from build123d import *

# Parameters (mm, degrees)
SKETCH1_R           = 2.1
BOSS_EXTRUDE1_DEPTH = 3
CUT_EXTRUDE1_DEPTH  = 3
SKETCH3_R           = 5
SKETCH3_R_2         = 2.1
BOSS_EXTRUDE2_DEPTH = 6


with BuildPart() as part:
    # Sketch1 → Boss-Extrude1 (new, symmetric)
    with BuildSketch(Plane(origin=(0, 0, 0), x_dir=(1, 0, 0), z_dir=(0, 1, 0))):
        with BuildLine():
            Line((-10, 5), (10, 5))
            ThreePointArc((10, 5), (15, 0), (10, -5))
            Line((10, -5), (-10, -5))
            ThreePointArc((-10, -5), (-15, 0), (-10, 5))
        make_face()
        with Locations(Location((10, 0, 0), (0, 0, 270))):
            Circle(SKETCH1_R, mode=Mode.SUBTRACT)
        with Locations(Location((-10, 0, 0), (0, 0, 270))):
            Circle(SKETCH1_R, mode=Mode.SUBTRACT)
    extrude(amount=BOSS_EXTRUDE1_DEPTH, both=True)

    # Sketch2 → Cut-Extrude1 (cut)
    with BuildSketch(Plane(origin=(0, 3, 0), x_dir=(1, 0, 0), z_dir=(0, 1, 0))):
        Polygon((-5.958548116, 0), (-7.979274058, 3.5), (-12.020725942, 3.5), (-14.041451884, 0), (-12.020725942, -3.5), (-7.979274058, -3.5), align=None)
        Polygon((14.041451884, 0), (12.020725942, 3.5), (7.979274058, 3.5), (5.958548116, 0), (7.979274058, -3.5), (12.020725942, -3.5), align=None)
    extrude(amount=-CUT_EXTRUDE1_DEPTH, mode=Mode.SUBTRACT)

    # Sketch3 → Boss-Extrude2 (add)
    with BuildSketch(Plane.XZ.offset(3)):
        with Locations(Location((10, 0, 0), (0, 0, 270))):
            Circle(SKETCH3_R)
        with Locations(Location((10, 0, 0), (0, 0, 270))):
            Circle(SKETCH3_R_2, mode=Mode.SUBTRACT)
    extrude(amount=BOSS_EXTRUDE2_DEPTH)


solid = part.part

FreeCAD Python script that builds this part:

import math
import FreeCAD as App
import Part
import Sketcher
Q = App.Units.Quantity

doc = App.newDocument("Part")
params = doc.addObject("Spreadsheet::Sheet", "Params")
for row, (alias, value) in enumerate([
    ("sketch1_radius", "5 mm"),
    ("sketch1_diameter", "4.2 mm"),
    ("sketch1_width", "20 mm"),
    ("pad1_length", "6 mm"),
    ("pocket1_length", "3 mm"),
    ("sketch3_diameter", "10 mm"),
    ("sketch3_diameter2", "4.2 mm"),
    ("pad2_length", "6 mm"),
], start=1):
    params.set(f"A{row}", alias)
    params.set(f"B{row}", "=" + value)
    params.setAlias(f"B{row}", alias)

body = doc.addObject("PartDesign::Body", "Body")

# Sketch on XZ plane
sketch1 = doc.addObject("Sketcher::SketchObject", "Sketch")
body.addObject(sketch1)
sketch1.AttachmentSupport = (doc.XZ_Plane, [""])
sketch1.MapMode = "FlatFace"
sketch1.addGeometry([
    Part.LineSegment(App.Vector(10, -5, 0), App.Vector(-10, -5, 0)),  # 0
    Part.ArcOfCircle(Part.Circle(App.Vector(-10, 0, 0), App.Vector(0, 0, 1), 5), math.radians(90), math.radians(270)),  # 1
    Part.LineSegment(App.Vector(-10, 5, 0), App.Vector(10, 5, 0)),  # 2
    Part.ArcOfCircle(Part.Circle(App.Vector(10, 0, 0), App.Vector(0, 0, 1), 5), math.radians(-90), math.radians(90)),  # 3
    Part.Circle(App.Vector(10, 0, 0), App.Vector(0, 0, 1), 2.1),  # 4
    Part.Circle(App.Vector(-10, 0, 0), App.Vector(0, 0, 1), 2.1),  # 5
], False)
sketch1.addConstraint([
    Sketcher.Constraint("Tangent", 0, 2, 1, 2),
    Sketcher.Constraint("Tangent", 1, 1, 2, 1),
    Sketcher.Constraint("Tangent", 2, 2, 3, 2),
    Sketcher.Constraint("Tangent", 3, 1, 0, 1),
    Sketcher.Constraint("Horizontal", 0),
    Sketcher.Constraint("Horizontal", 2),
    Sketcher.Constraint("Coincident", 4, 3, 3, 3),
    Sketcher.Constraint("Coincident", 5, 3, 1, 3),
    Sketcher.Constraint("Equal", 4, 5),
    Sketcher.Constraint("Symmetric", 1, 3, 3, 3, -1, 1),
    Sketcher.Constraint("Radius", 1, Q("5 mm")),
    Sketcher.Constraint("Diameter", 4, Q("4.2 mm")),
    Sketcher.Constraint("DistanceX", 0, 2, 0, 1, Q("20 mm")),
])
sketch1.setExpression("Constraints[10]", "Params.sketch1_radius")
sketch1.setExpression("Constraints[11]", "Params.sketch1_diameter")
sketch1.setExpression("Constraints[12]", "Params.sketch1_width")
pad1 = doc.addObject("PartDesign::Pad", "Pad")
body.addObject(pad1)
pad1.Profile = sketch1
pad1.setExpression("Length", "Params.pad1_length")
pad1.Midplane = True

# Sketch on XZ plane
sketch2 = doc.addObject("Sketcher::SketchObject", "Sketch001")
body.addObject(sketch2)
sketch2.AttachmentSupport = (doc.XZ_Plane, [""])
sketch2.MapMode = "FlatFace"
sketch2.AttachmentOffset = App.Placement(App.Vector(0, 0, -3), App.Rotation())
sketch2.addGeometry([
    Part.LineSegment(App.Vector(-6, 0, 0), App.Vector(-8, -3.5, 0)),  # 0
    Part.LineSegment(App.Vector(-8, -3.5, 0), App.Vector(-12, -3.5, 0)),  # 1
    Part.LineSegment(App.Vector(-12, -3.5, 0), App.Vector(-14, 0, 0)),  # 2
    Part.LineSegment(App.Vector(-14, 0, 0), App.Vector(-12, 3.5, 0)),  # 3
    Part.LineSegment(App.Vector(-12, 3.5, 0), App.Vector(-8, 3.5, 0)),  # 4
    Part.LineSegment(App.Vector(-8, 3.5, 0), App.Vector(-6, 0, 0)),  # 5
    Part.LineSegment(App.Vector(14, 0, 0), App.Vector(12, -3.5, 0)),  # 6
    Part.LineSegment(App.Vector(12, -3.5, 0), App.Vector(8, -3.5, 0)),  # 7
    Part.LineSegment(App.Vector(8, -3.5, 0), App.Vector(6, 0, 0)),  # 8
    Part.LineSegment(App.Vector(6, 0, 0), App.Vector(8, 3.5, 0)),  # 9
    Part.LineSegment(App.Vector(8, 3.5, 0), App.Vector(12, 3.5, 0)),  # 10
    Part.LineSegment(App.Vector(12, 3.5, 0), App.Vector(14, 0, 0)),  # 11
], False)
sketch2.addConstraint([
    Sketcher.Constraint("Coincident", 0, 2, 1, 1),
    Sketcher.Constraint("Coincident", 1, 2, 2, 1),
    Sketcher.Constraint("Coincident", 2, 2, 3, 1),
    Sketcher.Constraint("Coincident", 3, 2, 4, 1),
    Sketcher.Constraint("Coincident", 4, 2, 5, 1),
    Sketcher.Constraint("Coincident", 5, 2, 0, 1),
    Sketcher.Constraint("Coincident", 6, 2, 7, 1),
    Sketcher.Constraint("Coincident", 7, 2, 8, 1),
    Sketcher.Constraint("Coincident", 8, 2, 9, 1),
    Sketcher.Constraint("Coincident", 9, 2, 10, 1),
    Sketcher.Constraint("Coincident", 10, 2, 11, 1),
    Sketcher.Constraint("Coincident", 11, 2, 6, 1),
    Sketcher.Constraint("Horizontal", 1),
    Sketcher.Constraint("Horizontal", 4),
    Sketcher.Constraint("Horizontal", 7),
    Sketcher.Constraint("Horizontal", 10),
    Sketcher.Constraint("Symmetric", 3, 2, 6, 2, -1, 1),
    Sketcher.Constraint("Symmetric", 5, 2, 8, 2, -1, 1),
    Sketcher.Constraint("Symmetric", 0, 2, 9, 2, -1, 1),
    Sketcher.Constraint("Symmetric", 2, 2, 11, 2, -1, 1),
    Sketcher.Constraint("Symmetric", 1, 2, 6, 2, -2),
    Sketcher.Constraint("PointOnObject", 2, 2, -1),
    Sketcher.Constraint("PointOnObject", 5, 2, -1),
    Sketcher.Constraint("Parallel", 0, 3),
    Sketcher.Constraint("Parallel", 2, 5),
    Sketcher.Constraint("Parallel", 5, 8),
    Sketcher.Constraint("Parallel", 8, 11),
    Sketcher.Constraint("Angle", 0, Q("-120 deg")),
    Sketcher.Constraint("DistanceY", 1, 2, 3, 2, Q("7 mm")),
    Sketcher.Constraint("DistanceX", 0, 2, 6, 2, Q("20 mm")),
    Sketcher.Constraint("DistanceX", 1, 2, 1, 1, Q("4.041452 mm")),
])
pocket1 = doc.addObject("PartDesign::Pocket", "Pocket")
body.addObject(pocket1)
pocket1.Profile = sketch2
pocket1.setExpression("Length", "Params.pocket1_length")
pocket1.Reversed = True

# Sketch on XZ plane
sketch3 = doc.addObject("Sketcher::SketchObject", "Sketch002")
body.addObject(sketch3)
sketch3.AttachmentSupport = (doc.XZ_Plane, [""])
sketch3.MapMode = "FlatFace"
sketch3.AttachmentOffset = App.Placement(App.Vector(0, 0, 3), App.Rotation())
sketch3.addGeometry([
    Part.Circle(App.Vector(10, 0, 0), App.Vector(0, 0, 1), 5),
    Part.Circle(App.Vector(10, 0, 0), App.Vector(0, 0, 1), 2.1),
], False)
sketch3.addConstraint([
    Sketcher.Constraint("Coincident", 1, 3, 0, 3),
    Sketcher.Constraint("PointOnObject", 0, 3, -1),
    Sketcher.Constraint("Diameter", 0, Q("10 mm")),
    Sketcher.Constraint("Diameter", 1, Q("4.2 mm")),
    Sketcher.Constraint("DistanceX", -1, 1, 0, 3, Q("10 mm")),
])
sketch3.setExpression("Constraints[2]", "Params.sketch3_diameter")
sketch3.setExpression("Constraints[3]", "Params.sketch3_diameter2")
pad2 = doc.addObject("PartDesign::Pad", "Pad001")
body.addObject(pad2)
pad2.Profile = sketch3
pad2.setExpression("Length", "Params.pad2_length")

doc.recompute()
